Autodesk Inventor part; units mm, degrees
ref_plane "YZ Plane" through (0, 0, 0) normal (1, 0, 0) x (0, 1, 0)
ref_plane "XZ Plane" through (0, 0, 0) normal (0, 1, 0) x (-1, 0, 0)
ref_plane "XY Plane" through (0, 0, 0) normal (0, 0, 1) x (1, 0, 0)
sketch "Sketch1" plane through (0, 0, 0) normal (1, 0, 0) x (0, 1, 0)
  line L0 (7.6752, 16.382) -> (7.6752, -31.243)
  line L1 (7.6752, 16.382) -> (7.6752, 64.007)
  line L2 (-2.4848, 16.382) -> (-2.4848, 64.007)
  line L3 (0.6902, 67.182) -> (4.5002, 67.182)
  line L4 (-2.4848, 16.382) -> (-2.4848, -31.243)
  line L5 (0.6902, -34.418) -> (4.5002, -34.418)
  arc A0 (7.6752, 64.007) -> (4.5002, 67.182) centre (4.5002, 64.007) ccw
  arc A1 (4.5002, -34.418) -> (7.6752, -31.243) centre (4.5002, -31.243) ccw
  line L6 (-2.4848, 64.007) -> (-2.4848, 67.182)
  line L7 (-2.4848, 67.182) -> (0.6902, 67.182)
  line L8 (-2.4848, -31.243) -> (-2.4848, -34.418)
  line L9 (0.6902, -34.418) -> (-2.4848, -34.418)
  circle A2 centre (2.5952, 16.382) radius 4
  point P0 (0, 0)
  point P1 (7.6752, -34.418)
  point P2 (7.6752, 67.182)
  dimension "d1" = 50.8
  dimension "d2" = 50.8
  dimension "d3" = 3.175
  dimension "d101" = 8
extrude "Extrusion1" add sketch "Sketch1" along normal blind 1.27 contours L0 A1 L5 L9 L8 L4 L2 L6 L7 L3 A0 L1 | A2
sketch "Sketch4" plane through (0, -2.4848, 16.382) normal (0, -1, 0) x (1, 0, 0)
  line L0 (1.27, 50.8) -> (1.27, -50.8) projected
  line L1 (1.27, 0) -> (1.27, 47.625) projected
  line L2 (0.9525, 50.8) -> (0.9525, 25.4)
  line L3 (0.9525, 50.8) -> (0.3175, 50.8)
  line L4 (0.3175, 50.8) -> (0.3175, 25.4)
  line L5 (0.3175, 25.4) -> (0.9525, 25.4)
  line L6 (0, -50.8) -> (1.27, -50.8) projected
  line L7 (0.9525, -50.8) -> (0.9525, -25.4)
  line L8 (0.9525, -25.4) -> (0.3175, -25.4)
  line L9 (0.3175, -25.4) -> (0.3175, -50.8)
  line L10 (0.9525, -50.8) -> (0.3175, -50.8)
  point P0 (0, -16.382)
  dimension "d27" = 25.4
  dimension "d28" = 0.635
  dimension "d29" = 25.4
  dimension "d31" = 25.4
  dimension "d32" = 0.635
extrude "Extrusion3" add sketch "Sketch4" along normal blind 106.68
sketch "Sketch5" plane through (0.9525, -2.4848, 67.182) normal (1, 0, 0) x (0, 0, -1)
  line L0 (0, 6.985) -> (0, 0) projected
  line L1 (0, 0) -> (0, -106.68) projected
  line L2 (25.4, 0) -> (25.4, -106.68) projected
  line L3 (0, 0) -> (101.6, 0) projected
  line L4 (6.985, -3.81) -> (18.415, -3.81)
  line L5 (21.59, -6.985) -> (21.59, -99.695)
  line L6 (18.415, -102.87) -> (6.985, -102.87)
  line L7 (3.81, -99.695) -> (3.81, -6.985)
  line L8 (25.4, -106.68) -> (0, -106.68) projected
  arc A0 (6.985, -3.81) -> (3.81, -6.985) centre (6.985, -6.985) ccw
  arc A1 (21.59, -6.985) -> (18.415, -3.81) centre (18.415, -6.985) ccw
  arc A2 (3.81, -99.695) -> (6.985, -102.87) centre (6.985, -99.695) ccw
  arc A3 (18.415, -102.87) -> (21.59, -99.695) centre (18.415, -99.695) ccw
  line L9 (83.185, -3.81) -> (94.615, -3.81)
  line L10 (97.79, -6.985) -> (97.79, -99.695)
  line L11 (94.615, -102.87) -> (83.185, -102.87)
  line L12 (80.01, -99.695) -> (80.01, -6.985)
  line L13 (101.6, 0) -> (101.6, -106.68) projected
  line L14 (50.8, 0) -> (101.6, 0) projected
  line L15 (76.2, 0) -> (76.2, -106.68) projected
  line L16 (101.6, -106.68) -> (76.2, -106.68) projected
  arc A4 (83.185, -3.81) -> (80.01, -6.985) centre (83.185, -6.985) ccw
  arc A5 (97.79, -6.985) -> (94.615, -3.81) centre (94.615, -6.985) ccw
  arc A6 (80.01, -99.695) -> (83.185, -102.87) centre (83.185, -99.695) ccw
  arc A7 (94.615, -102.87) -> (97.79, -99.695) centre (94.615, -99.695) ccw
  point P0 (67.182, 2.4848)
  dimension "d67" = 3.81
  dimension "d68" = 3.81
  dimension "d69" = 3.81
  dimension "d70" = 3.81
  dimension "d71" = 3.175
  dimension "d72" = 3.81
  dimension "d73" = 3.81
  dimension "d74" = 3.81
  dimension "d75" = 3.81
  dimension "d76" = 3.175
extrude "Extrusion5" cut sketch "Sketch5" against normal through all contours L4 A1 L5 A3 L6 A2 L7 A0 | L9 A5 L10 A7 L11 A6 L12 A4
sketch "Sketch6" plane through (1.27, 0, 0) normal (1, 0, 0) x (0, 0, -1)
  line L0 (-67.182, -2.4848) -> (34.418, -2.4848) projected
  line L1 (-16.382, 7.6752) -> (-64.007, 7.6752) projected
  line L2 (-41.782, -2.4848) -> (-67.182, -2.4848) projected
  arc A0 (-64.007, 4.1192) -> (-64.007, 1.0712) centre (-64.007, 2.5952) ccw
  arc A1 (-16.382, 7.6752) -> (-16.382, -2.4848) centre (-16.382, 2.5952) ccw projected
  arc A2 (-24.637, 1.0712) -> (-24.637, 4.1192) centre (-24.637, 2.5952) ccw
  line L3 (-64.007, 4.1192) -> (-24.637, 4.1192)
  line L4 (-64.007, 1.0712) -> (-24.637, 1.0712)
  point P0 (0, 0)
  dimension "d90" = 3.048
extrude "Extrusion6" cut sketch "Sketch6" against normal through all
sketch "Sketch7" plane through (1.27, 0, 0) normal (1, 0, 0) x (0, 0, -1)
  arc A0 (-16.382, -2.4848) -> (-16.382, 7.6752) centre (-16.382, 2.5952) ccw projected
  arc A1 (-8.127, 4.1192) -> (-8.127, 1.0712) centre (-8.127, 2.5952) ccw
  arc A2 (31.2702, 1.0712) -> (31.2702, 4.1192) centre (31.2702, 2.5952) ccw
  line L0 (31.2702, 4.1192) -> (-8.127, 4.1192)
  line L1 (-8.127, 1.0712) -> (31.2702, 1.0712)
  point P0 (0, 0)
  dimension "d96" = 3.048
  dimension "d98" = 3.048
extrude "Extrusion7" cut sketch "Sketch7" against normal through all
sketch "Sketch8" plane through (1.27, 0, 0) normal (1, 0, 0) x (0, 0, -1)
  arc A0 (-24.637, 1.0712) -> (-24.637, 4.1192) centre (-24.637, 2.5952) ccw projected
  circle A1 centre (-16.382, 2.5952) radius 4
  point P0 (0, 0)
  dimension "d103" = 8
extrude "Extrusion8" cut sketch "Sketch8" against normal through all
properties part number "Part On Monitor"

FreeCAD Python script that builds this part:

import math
import FreeCAD as App
import Part
import Sketcher
Q = App.Units.Quantity

doc = App.newDocument("Part")
params = doc.addObject("Spreadsheet::Sheet", "Params")
for row, (alias, value) in enumerate([
    ("sketch1_radius", "0.125 in"),
    ("sketch1_height", "4 in"),
    ("pad1_length", "0.05 in"),
    ("sketch2_height", "1 in"),
    ("sketch2_width", "0.025 in"),
    ("pad2_length", "4.2 in"),
    ("sketch3_radius", "0.125 in"),
    ("sketch3_width", "3.65 in"),
    ("sketch3_height", "0.45 in"),
    ("sketch4_radius", "0.06 in"),
    ("sketch4_height", "1.55 in"),
    ("sketch5_radius", "0.06 in"),
], start=1):
    params.set(f"A{row}", alias)
    params.set(f"B{row}", "=" + value)
    params.setAlias(f"B{row}", alias)

body = doc.addObject("PartDesign::Body", "Body")

sketch1 = doc.addObject("Sketcher::SketchObject", "Sketch")
body.addObject(sketch1)
sketch1.AttachmentSupport = (doc.YZ_Plane, [""])
sketch1.MapMode = "FlatFace"
sketch1.addGeometry(Part.LineSegment(App.Vector(7.7, -31.2, 0), App.Vector(7.7, 64, 0)), False)
sketch1.addGeometry(Part.ArcOfCircle(Part.Circle(App.Vector(4.5, 64, 0), App.Vector(0, 0, 1), 3.2), math.radians(0), math.radians(90)), False)
sketch1.addGeometry(Part.LineSegment(App.Vector(4.5, 67.2, 0), App.Vector(-2.5, 67.2, 0)), False)
sketch1.addGeometry(Part.LineSegment(App.Vector(-2.5, 67.2, 0), App.Vector(-2.5, -34.4, 0)), False)
sketch1.addGeometry(Part.LineSegment(App.Vector(-2.5, -34.4, 0), App.Vector(4.5, -34.4, 0)), False)
sketch1.addGeometry(Part.ArcOfCircle(Part.Circle(App.Vector(4.5, -31.2, 0), App.Vector(0, 0, 1), 3.2), math.radians(-90), math.radians(0)), False)
sketch1.addConstraint(Sketcher.Constraint("Tangent", 0, 2, 1, 1))
sketch1.addConstraint(Sketcher.Constraint("Tangent", 1, 2, 2, 1))
sketch1.addConstraint(Sketcher.Constraint("Coincident", 2, 2, 3, 1))
sketch1.addConstraint(Sketcher.Constraint("Coincident", 3, 2, 4, 1))
sketch1.addConstraint(Sketcher.Constraint("Tangent", 4, 2, 5, 1))
sketch1.addConstraint(Sketcher.Constraint("Tangent", 5, 2, 0, 1))
sketch1.addConstraint(Sketcher.Constraint("Vertical", 0))
sketch1.addConstraint(Sketcher.Constraint("Horizontal", 2))
sketch1.addConstraint(Sketcher.Constraint("Vertical", 3))
sketch1.addConstraint(Sketcher.Constraint("Horizontal", 4))
sketch1.addConstraint(Sketcher.Constraint("Equal", 1, 5))
sketch1.addConstraint(Sketcher.Constraint("Radius", 1, Q("0.125 in")))
sketch1.addConstraint(Sketcher.Constraint("DistanceY", 3, 2, 3, 1, Q("4 in")))
sketch1.addConstraint(Sketcher.Constraint("DistanceX", 2, 2, 0, 2, Q("0.4 in")))
sketch1.addConstraint(Sketcher.Constraint("DistanceX", -1, 1, 1, 3, Q("4.5002 mm")))
sketch1.addConstraint(Sketcher.Constraint("DistanceY", -1, 1, 1, 3, Q("64.007 mm")))
sketch1.setExpression("Constraints[11]", "Params.sketch1_radius")
sketch1.setExpression("Constraints[12]", "Params.sketch1_height")
pad1 = doc.addObject("PartDesign::Pad", "Pad")
body.addObject(pad1)
pad1.Profile = sketch1
pad1.setExpression("Length", "Params.pad1_length")

sketch2 = doc.addObject("Sketcher::SketchObject", "Sketch001")
body.addObject(sketch2)
sketch2.AttachmentSupport = (doc.XZ_Plane, [""])
sketch2.MapMode = "FlatFace"
sketch2.AttachmentOffset = App.Placement(App.Vector(0, 0, 2.4848), App.Rotation())
sketch2.addGeometry(Part.LineSegment(App.Vector(1, 41.8, 0), App.Vector(1, 67.2, 0)), False)
sketch2.addGeometry(Part.LineSegment(App.Vector(1, 67.2, 0), App.Vector(0.3, 67.2, 0)), False)
sketch2.addGeometry(Part.LineSegment(App.Vector(0.3, 67.2, 0), App.Vector(0.3, 41.8, 0)), False)
sketch2.addGeometry(Part.LineSegment(App.Vector(0.3, 41.8, 0), App.Vector(1, 41.8, 0)), False)
sketch2.addGeometry(Part.LineSegment(App.Vector(0.3, -9, 0), App.Vector(0.3, -34.4, 0)), False)
sketch2.addGeometry(Part.LineSegment(App.Vector(0.3, -34.4, 0), App.Vector(1, -34.4, 0)), False)
sketch2.addGeometry(Part.LineSegment(App.Vector(1, -34.4, 0), App.Vector(1, -9, 0)), False)
sketch2.addGeometry(Part.LineSegment(App.Vector(1, -9, 0), App.Vector(0.3, -9, 0)), False)
sketch2.addConstraint(Sketcher.Constraint("Coincident", 0, 2, 1, 1))
sketch2.addConstraint(Sketcher.Constraint("Coincident", 1, 2, 2, 1))
sketch2.addConstraint(Sketcher.Constraint("Coincident", 2, 2, 3, 1))
sketch2.addConstraint(Sketcher.Constraint("Coincident", 3, 2, 0, 1))
sketch2.addConstraint(Sketcher.Constraint("Coincident", 4, 2, 5, 1))
sketch2.addConstraint(Sketcher.Constraint("Coincident", 5, 2, 6, 1))
sketch2.addConstraint(Sketcher.Constraint("Coincident", 6, 2, 7, 1))
sketch2.addConstraint(Sketcher.Constraint("Coincident", 7, 2, 4, 1))
sketch2.addConstraint(Sketcher.Constraint("Vertical", 0))
sketch2.addConstraint(Sketcher.Constraint("Horizontal", 1))
sketch2.addConstraint(Sketcher.Constraint("Vertical", 2))
sketch2.addConstraint(Sketcher.Constraint("Horizontal", 3))
sketch2.addConstraint(Sketcher.Constraint("Vertical", 4))
sketch2.addConstraint(Sketcher.Constraint("Horizontal", 5))
sketch2.addConstraint(Sketcher.Constraint("Vertical", 6))
sketch2.addConstraint(Sketcher.Constraint("Horizontal", 7))
sketch2.addConstraint(Sketcher.Constraint("Vertical", 2, 2, 4, 2))
sketch2.addConstraint(Sketcher.Constraint("Vertical", 3, 2, 5, 2))
sketch2.addConstraint(Sketcher.Constraint("Equal", 2, 4))
sketch2.addConstraint(Sketcher.Constraint("DistanceY", 0, 1, 0, 2, Q("1 in")))
sketch2.addConstraint(Sketcher.Constraint("DistanceX", 1, 2, 1, 1, Q("0.025 in")))
sketch2.addConstraint(Sketcher.Constraint("DistanceY", 4, 2, 2, 2, Q("3 in")))
sketch2.addConstraint(Sketcher.Constraint("DistanceX", -1, 1, 0, 2, Q("0.0375 in")))
sketch2.addConstraint(Sketcher.Constraint("DistanceY", -1, 1, 0, 2, Q("67.182 mm")))
sketch2.setExpression("Constraints[19]", "Params.sketch2_height")
sketch2.setExpression("Constraints[20]", "Params.sketch2_width")
pad2 = doc.addObject("PartDesign::Pad", "Pad001")
body.addObject(pad2)
pad2.Profile = sketch2
pad2.setExpression("Length", "Params.pad2_length")

sketch3 = doc.addObject("Sketcher::SketchObject", "Sketch002")
body.addObject(sketch3)
sketch3.AttachmentSupport = (doc.YZ_Plane, [""])
sketch3.MapMode = "FlatFace"
sketch3.AttachmentOffset = App.Placement(App.Vector(0, 0, 0.0375 * 25.4), App.Rotation())
sketch3.addGeometry(Part.LineSegment(App.Vector(-6.3, 48.8, 0), App.Vector(-6.3, 60.2, 0)), False)
sketch3.addGeometry(Part.ArcOfCircle(Part.Circle(App.Vector(-9.5, 60.2, 0), App.Vector(0, 0, 1), 3.2), math.radians(0), math.radians(90)), False)
sketch3.addGeometry(Part.LineSegment(App.Vector(-9.5, 63.4, 0), App.Vector(-102.2, 63.4, 0)), False)
sketch3.addGeometry(Part.ArcOfCircle(Part.Circle(App.Vector(-102.2, 60.2, 0), App.Vector(0, 0, 1), 3.2), math.radians(90), math.radians(180)), False)
sketch3.addGeometry(Part.LineSegment(App.Vector(-105.4, 60.2, 0), App.Vector(-105.4, 48.8, 0)), False)
sketch3.addGeometry(Part.ArcOfCircle(Part.Circle(App.Vector(-102.2, 48.8, 0), App.Vector(0, 0, 1), 3.2), math.radians(180), math.radians(270)), False)
sketch3.addGeometry(Part.LineSegment(App.Vector(-102.2, 45.6, 0), App.Vector(-9.5, 45.6, 0)), False)
sketch3.addGeometry(Part.ArcOfCircle(Part.Circle(App.Vector(-9.5, 48.8, 0), App.Vector(0, 0, 1), 3.2), math.radians(-90), math.radians(0)), False)
sketch3.addGeometry(Part.LineSegment(App.Vector(-6.3, -27.4, 0), App.Vector(-6.3, -16, 0)), False)
sketch3.addGeometry(Part.ArcOfCircle(Part.Circle(App.Vector(-9.5, -16, 0), App.Vector(0, 0, 1), 3.2), math.radians(0), math.radians(90)), False)
sketch3.addGeometry(Part.LineSegment(App.Vector(-9.5, -12.8, 0), App.Vector(-102.2, -12.8, 0)), False)
sketch3.addGeometry(Part.ArcOfCircle(Part.Circle(App.Vector(-102.2, -16, 0), App.Vector(0, 0, 1), 3.2), math.radians(90), math.radians(180)), False)
sketch3.addGeometry(Part.LineSegment(App.Vector(-105.4, -16, 0), App.Vector(-105.4, -27.4, 0)), False)
sketch3.addGeometry(Part.ArcOfCircle(Part.Circle(App.Vector(-102.2, -27.4, 0), App.Vector(0, 0, 1), 3.2), math.radians(180), math.radians(270)), False)
sketch3.addGeometry(Part.LineSegment(App.Vector(-102.2, -30.6, 0), App.Vector(-9.5, -30.6, 0)), False)
sketch3.addGeometry(Part.ArcOfCircle(Part.Circle(App.Vector(-9.5, -27.4, 0), App.Vector(0, 0, 1), 3.2), math.radians(-90), math.radians(0)), False)
sketch3.addConstraint(Sketcher.Constraint("Tangent", 0, 2, 1, 1))
sketch3.addConstraint(Sketcher.Constraint("Tangent", 1, 2, 2, 1))
sketch3.addConstraint(Sketcher.Constraint("Tangent", 2, 2, 3, 1))
sketch3.addConstraint(Sketcher.Constraint("Tangent", 3, 2, 4, 1))
sketch3.addConstraint(Sketcher.Constraint("Tangent", 4, 2, 5, 1))
sketch3.addConstraint(Sketcher.Constraint("Tangent", 5, 2, 6, 1))
sketch3.addConstraint(Sketcher.Constraint("Tangent", 6, 2, 7, 1))
sketch3.addConstraint(Sketcher.Constraint("Tangent", 7, 2, 0, 1))
sketch3.addConstraint(Sketcher.Constraint("Tangent", 8, 2, 9, 1))
sketch3.addConstraint(Sketcher.Constraint("Tangent", 9, 2, 10, 1))
sketch3.addConstraint(Sketcher.Constraint("Tangent", 10, 2, 11, 1))
sketch3.addConstraint(Sketcher.Constraint("Tangent", 11, 2, 12, 1))
sketch3.addConstraint(Sketcher.Constraint("Tangent", 12, 2, 13, 1))
sketch3.addConstraint(Sketcher.Constraint("Tangent", 13, 2, 14, 1))
sketch3.addConstraint(Sketcher.Constraint("Tangent", 14, 2, 15, 1))
sketch3.addConstraint(Sketcher.Constraint("Tangent", 15, 2, 8, 1))
sketch3.addConstraint(Sketcher.Constraint("Vertical", 0))
sketch3.addConstraint(Sketcher.Constraint("Horizontal", 2))
sketch3.addConstraint(Sketcher.Constraint("Vertical", 4))
sketch3.addConstraint(Sketcher.Constraint("Horizontal", 6))
sketch3.addConstraint(Sketcher.Constraint("Vertical", 8))
sketch3.addConstraint(Sketcher.Constraint("Horizontal", 10))
sketch3.addConstraint(Sketcher.Constraint("Vertical", 12))
sketch3.addConstraint(Sketcher.Constraint("Horizontal", 14))
sketch3.addConstraint(Sketcher.Constraint("Equal", 1, 3))
sketch3.addConstraint(Sketcher.Constraint("Equal", 3, 5))
sketch3.addConstraint(Sketcher.Constraint("Equal", 5, 7))
sketch3.addConstraint(Sketcher.Constraint("Equal", 7, 9))
sketch3.addConstraint(Sketcher.Constraint("Equal", 9, 11))
sketch3.addConstraint(Sketcher.Constraint("Equal", 11, 13))
sketch3.addConstraint(Sketcher.Constraint("Equal", 13, 15))
sketch3.addConstraint(Sketcher.Constraint("Vertical", 7, 3, 9, 3))
sketch3.addConstraint(Sketcher.Constraint("Vertical", 5, 3, 11, 3))
sketch3.addConstraint(Sketcher.Constraint("Equal", 4, 8))
sketch3.addConstraint(Sketcher.Constraint("Radius", 1, Q("0.125 in")))
sketch3.addConstraint(Sketcher.Constraint("DistanceY", 9, 3, 1, 3, Q("3 in")))
sketch3.addConstraint(Sketcher.Constraint("DistanceX", 2, 2, 2, 1, Q("3.65 in")))
sketch3.addConstraint(Sketcher.Constraint("DistanceY", 0, 1, 0, 2, Q("0.45 in")))
sketch3.addConstraint(Sketcher.Constraint("DistanceX", 1, 3, -1, 1, Q("9.4698 mm")))
sketch3.addConstraint(Sketcher.Constraint("DistanceY", -1, 1, 1, 3, Q("60.197 mm")))
sketch3.setExpression("Constraints[34]", "Params.sketch3_radius")
sketch3.setExpression("Constraints[36]", "Params.sketch3_width")
sketch3.setExpression("Constraints[37]", "Params.sketch3_height")
pocket1 = doc.addObject("PartDesign::Pocket", "Pocket")
body.addObject(pocket1)
pocket1.Profile = sketch3
pocket1.Type = "ThroughAll"

sketch4 = doc.addObject("Sketcher::SketchObject", "Sketch003")
body.addObject(sketch4)
sketch4.AttachmentSupport = (doc.YZ_Plane, [""])
sketch4.MapMode = "FlatFace"
sketch4.AttachmentOffset = App.Placement(App.Vector(0, 0, 0.05 * 25.4), App.Rotation())
sketch4.addGeometry(Part.LineSegment(App.Vector(4.1, 24.6, 0), App.Vector(4.1, 64, 0)), False)
sketch4.addGeometry(Part.ArcOfCircle(Part.Circle(App.Vector(2.6, 64, 0), App.Vector(0, 0, 1), 1.5), math.radians(0), math.radians(180)), False)
sketch4.addGeometry(Part.LineSegment(App.Vector(1.1, 64, 0), App.Vector(1.1, 24.6, 0)), False)
sketch4.addGeometry(Part.ArcOfCircle(Part.Circle(App.Vector(2.6, 24.6, 0), App.Vector(0, 0, 1), 1.5), math.radians(180), math.radians(360)), False)
sketch4.addConstraint(Sketcher.Constraint("Tangent", 0, 2, 1, 1))
sketch4.addConstraint(Sketcher.Constraint("Tangent", 1, 2, 2, 1))
sketch4.addConstraint(Sketcher.Constraint("Tangent", 2, 2, 3, 1))
sketch4.addConstraint(Sketcher.Constraint("Tangent", 3, 2, 0, 1))
sketch4.addConstraint(Sketcher.Constraint("Vertical", 0))
sketch4.addConstraint(Sketcher.Constraint("Vertical", 2))
sketch4.addConstraint(Sketcher.Constraint("Radius", 1, Q("0.06 in")))
sketch4.addConstraint(Sketcher.Constraint("DistanceY", 0, 1, 0, 2, Q("1.55 in")))
sketch4.addConstraint(Sketcher.Constraint("DistanceX", -1, 1, 1, 3, Q("2.5952 mm")))
sketch4.addConstraint(Sketcher.Constraint("DistanceY", -1, 1, 1, 3, Q("64.007 mm")))
sketch4.setExpression("Constraints[6]", "Params.sketch4_radius")
sketch4.setExpression("Constraints[7]", "Params.sketch4_height")
pocket2 = doc.addObject("PartDesign::Pocket", "Pocket001")
body.addObject(pocket2)
pocket2.Profile = sketch4
pocket2.Type = "ThroughAll"

sketch5 = doc.addObject("Sketcher::SketchObject", "Sketch004")
body.addObject(sketch5)
sketch5.AttachmentSupport = (doc.YZ_Plane, [""])
sketch5.MapMode = "FlatFace"
sketch5.AttachmentOffset = App.Placement(App.Vector(0, 0, 0.05 * 25.4), App.Rotation())
sketch5.addGeometry(Part.LineSegment(App.Vector(4.1, -31.3, 0), App.Vector(4.1, 8.1, 0)), False)
sketch5.addGeometry(Part.ArcOfCircle(Part.Circle(App.Vector(2.6, 8.1, 0), App.Vector(0, 0, 1), 1.5), math.radians(0), math.radians(180)), False)
sketch5.addGeometry(Part.LineSegment(App.Vector(1.1, 8.1, 0), App.Vector(1.1, -31.3, 0)), False)
sketch5.addGeometry(Part.ArcOfCircle(Part.Circle(App.Vector(2.6, -31.3, 0), App.Vector(0, 0, 1), 1.5), math.radians(180), math.radians(360)), False)
sketch5.addConstraint(Sketcher.Constraint("Tangent", 0, 2, 1, 1))
sketch5.addConstraint(Sketcher.Constraint("Tangent", 1, 2, 2, 1))
sketch5.addConstraint(Sketcher.Constraint("Tangent", 2, 2, 3, 1))
sketch5.addConstraint(Sketcher.Constraint("Tangent", 3, 2, 0, 1))
sketch5.addConstraint(Sketcher.Constraint("Vertical", 0))
sketch5.addConstraint(Sketcher.Constraint("Vertical", 2))
sketch5.addConstraint(Sketcher.Constraint("Radius", 1, Q("0.06 in")))
sketch5.addConstraint(Sketcher.Constraint("DistanceY", 0, 1, 0, 2, Q("39.3972 mm")))
sketch5.addConstraint(Sketcher.Constraint("DistanceY", 3, 3, -1, 1, Q("1.2311 in")))
sketch5.addConstraint(Sketcher.Constraint("DistanceX", -1, 1, 1, 3, Q("2.5952 mm")))
sketch5.setExpression("Constraints[6]", "Params.sketch5_radius")
pocket3 = doc.addObject("PartDesign::Pocket", "Pocket002")
body.addObject(pocket3)
pocket3.Profile = sketch5
pocket3.Type = "ThroughAll"

sketch6 = doc.addObject("Sketcher::SketchObject", "Sketch005")
body.addObject(sketch6)
sketch6.AttachmentSupport = (doc.YZ_Plane, [""])
sketch6.MapMode = "FlatFace"
sketch6.AttachmentOffset = App.Placement(App.Vector(0, 0, 0.05 * 25.4), App.Rotation())
sketch6.addGeometry(Part.Circle(App.Vector(2.6, 16.4, 0), App.Vector(0, 0, 1), 4), False)
sketch6.addConstraint(Sketcher.Constraint("Diameter", 0, Q("8 mm")))
sketch6.addConstraint(Sketcher.Constraint("DistanceX", -1, 1, 0, 3, Q("2.5952 mm")))
sketch6.addConstraint(Sketcher.Constraint("DistanceY", -1, 1, 0, 3, Q("16.382 mm")))
pocket4 = doc.addObject("PartDesign::Pocket", "Pocket003")
body.addObject(pocket4)
pocket4.Profile = sketch6
pocket4.Type = "ThroughAll"

doc.recompute()
